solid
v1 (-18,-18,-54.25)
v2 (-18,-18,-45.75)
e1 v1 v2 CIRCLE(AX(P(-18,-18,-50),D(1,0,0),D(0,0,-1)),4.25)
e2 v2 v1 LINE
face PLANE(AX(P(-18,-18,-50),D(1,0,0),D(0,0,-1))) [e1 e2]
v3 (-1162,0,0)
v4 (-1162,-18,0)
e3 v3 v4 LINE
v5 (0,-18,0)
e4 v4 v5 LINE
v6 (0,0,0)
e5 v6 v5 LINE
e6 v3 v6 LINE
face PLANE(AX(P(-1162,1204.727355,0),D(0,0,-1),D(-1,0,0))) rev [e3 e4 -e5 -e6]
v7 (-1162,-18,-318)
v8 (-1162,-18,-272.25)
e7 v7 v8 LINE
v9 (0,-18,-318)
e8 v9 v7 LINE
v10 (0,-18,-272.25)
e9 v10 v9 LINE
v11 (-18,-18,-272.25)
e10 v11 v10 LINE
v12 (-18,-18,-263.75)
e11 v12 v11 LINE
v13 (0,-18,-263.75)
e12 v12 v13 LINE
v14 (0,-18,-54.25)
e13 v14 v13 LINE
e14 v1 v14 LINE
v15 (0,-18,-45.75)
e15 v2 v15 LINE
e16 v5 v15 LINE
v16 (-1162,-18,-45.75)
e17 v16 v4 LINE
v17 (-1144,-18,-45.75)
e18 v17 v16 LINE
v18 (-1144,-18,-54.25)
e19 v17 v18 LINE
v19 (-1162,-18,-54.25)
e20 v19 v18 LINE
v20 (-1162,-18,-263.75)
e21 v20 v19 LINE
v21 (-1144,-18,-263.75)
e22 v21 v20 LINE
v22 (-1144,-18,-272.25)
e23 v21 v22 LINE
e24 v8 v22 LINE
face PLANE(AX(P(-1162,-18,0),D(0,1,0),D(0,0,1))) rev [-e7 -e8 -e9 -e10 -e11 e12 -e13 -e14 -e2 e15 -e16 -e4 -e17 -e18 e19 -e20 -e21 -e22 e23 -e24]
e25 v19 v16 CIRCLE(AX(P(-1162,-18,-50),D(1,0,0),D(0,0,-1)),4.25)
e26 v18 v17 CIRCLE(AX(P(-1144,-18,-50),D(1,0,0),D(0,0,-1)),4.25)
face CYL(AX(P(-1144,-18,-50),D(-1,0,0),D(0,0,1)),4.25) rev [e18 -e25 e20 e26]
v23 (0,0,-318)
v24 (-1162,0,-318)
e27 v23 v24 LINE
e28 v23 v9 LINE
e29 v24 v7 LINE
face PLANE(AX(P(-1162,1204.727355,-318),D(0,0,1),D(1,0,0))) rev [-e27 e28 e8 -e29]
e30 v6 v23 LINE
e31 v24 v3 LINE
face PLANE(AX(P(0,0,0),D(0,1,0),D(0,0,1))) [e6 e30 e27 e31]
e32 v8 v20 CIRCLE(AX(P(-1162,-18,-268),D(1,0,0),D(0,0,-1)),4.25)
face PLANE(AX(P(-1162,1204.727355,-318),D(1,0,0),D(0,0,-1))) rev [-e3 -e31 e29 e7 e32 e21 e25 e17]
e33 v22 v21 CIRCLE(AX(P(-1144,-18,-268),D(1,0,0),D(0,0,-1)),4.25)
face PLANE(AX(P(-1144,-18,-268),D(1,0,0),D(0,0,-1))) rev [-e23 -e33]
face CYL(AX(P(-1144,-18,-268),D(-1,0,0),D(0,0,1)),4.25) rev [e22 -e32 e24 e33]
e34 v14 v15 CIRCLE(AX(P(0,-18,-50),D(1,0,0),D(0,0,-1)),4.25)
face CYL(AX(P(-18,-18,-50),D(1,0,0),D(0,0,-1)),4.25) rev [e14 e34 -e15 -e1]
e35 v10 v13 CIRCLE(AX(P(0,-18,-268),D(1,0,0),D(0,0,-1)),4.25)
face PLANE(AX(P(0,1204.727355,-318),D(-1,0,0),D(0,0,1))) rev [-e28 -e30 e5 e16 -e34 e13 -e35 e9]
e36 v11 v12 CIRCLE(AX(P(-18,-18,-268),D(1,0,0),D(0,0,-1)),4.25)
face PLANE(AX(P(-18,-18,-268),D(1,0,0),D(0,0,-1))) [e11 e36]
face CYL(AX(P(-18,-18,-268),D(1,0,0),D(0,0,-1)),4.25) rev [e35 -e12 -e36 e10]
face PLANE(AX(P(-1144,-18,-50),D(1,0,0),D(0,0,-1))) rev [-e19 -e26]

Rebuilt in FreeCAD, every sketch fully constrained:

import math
import FreeCAD as App
import Part
import Sketcher
from FreeCAD import Vector
Q = App.Units.Quantity


def add_polygon(sketch, points):
    """Adds a closed chain of lines whose ends are joined by coincident constraints."""
    first, n = sketch.GeometryCount, len(points)
    for a, b in zip(points, points[1:] + points[:1]):
        sketch.addGeometry(Part.LineSegment(App.Vector(*a, 0), App.Vector(*b, 0)), False)
    for i in range(n):
        sketch.addConstraint(Sketcher.Constraint("Coincident", first + i, 2, first + (i + 1) % n, 1))

doc = App.newDocument("Part")
body = doc.addObject("PartDesign::Body", "Body")

sketch1 = body.newObject("Sketcher::SketchObject", "Sketch")
sketch1.AttachmentSupport = (doc.getObject("XZ_Plane"), [""])
sketch1.MapMode = "FlatFace"
sketch1.AttachmentOffset = App.Placement(Vector(0, 0, 18), App.Rotation())
add_polygon(sketch1, [(0, 0), (0, -318), (-1162, -318), (-1162, 0)])
sketch1.addConstraint([
    Sketcher.Constraint("Vertical", 0),
    Sketcher.Constraint("Horizontal", 1),
    Sketcher.Constraint("Vertical", 2),
    Sketcher.Constraint("Horizontal", 3),
    Sketcher.Constraint("Coincident", 3, 2, -1, 1),
    Sketcher.Constraint("DistanceX", 1, 2, 1, 1, Q("1162 mm")),
    Sketcher.Constraint("DistanceY", 0, 2, 0, 1, Q("318 mm")),
])
pad1 = body.newObject("PartDesign::Pad", "Pad")
pad1.Profile = sketch1
pad1.Length = 18
pad1.Reversed = True

sketch2 = body.newObject("Sketcher::SketchObject", "Sketch001")
sketch2.AttachmentSupport = (doc.getObject("YZ_Plane"), [""])
sketch2.MapMode = "FlatFace"
sketch2.AttachmentOffset = App.Placement(Vector(0, 0, -1162), App.Rotation())
sketch2.addGeometry([
    Part.Circle(Vector(-18, -50, 0), Vector(0, 0, 1), 4.2),
    Part.Circle(Vector(-18, -268, 0), Vector(0, 0, 1), 4.2),
], False)
sketch2.addConstraint([
    Sketcher.Constraint("Equal", 0, 1),
    Sketcher.Constraint("Vertical", 0, 3, 1, 3),
    Sketcher.Constraint("Diameter", 0, Q("8.5 mm")),
    Sketcher.Constraint("DistanceX", 0, 3, -1, 1, Q("18 mm")),
    Sketcher.Constraint("DistanceY", 0, 3, -1, 1, Q("50 mm")),
    Sketcher.Constraint("DistanceY", 1, 3, -1, 1, Q("268 mm")),
])
pocket1 = body.newObject("PartDesign::Pocket", "Pocket")
pocket1.Profile = sketch2
pocket1.Length = 18
pocket1.Reversed = True

sketch3 = body.newObject("Sketcher::SketchObject", "Sketch002")
sketch3.AttachmentSupport = (doc.getObject("YZ_Plane"), [""])
sketch3.MapMode = "FlatFace"
sketch3.AttachmentOffset = App.Placement(Vector(0, 0, -18), App.Rotation())
sketch3.addGeometry([
    Part.LineSegment(Vector(-18, -45.8, 0), Vector(-18, -54.2, 0)),
    Part.ArcOfCircle(Part.Circle(Vector(-18, -50, 0), Vector(0, 0, 1), 4.2), math.radians(-90), math.radians(90)),
    Part.LineSegment(Vector(-18, -263.8, 0), Vector(-18, -272.2, 0)),
    Part.ArcOfCircle(Part.Circle(Vector(-18, -268, 0), Vector(0, 0, 1), 4.2), math.radians(-90), math.radians(90)),
], False)
sketch3.addConstraint([
    Sketcher.Constraint("Coincident", 0, 1, 1, 2),
    Sketcher.Constraint("Coincident", 1, 1, 0, 2),
    Sketcher.Constraint("Coincident", 2, 1, 3, 2),
    Sketcher.Constraint("Coincident", 3, 1, 2, 2),
    Sketcher.Constraint("Vertical", 0),
    Sketcher.Constraint("Vertical", 2),
    Sketcher.Constraint("Equal", 1, 3),
    Sketcher.Constraint("Vertical", 1, 3, 3, 3),
    Sketcher.Constraint("Vertical", 3, 3, 0, 1),
    Sketcher.Constraint("Vertical", 1, 1, 2, 1),
    Sketcher.Constraint("Radius", 1, Q("4.25 mm")),
    Sketcher.Constraint("DistanceX", 1, 3, -1, 1, Q("18 mm")),
    Sketcher.Constraint("DistanceY", 1, 3, -1, 1, Q("50 mm")),
    Sketcher.Constraint("DistanceY", 3, 3, -1, 1, Q("268 mm")),
])
pocket2 = body.newObject("PartDesign::Pocket", "Pocket001")
pocket2.Profile = sketch3
pocket2.Length = 18
pocket2.Reversed = True

doc.recompute()
